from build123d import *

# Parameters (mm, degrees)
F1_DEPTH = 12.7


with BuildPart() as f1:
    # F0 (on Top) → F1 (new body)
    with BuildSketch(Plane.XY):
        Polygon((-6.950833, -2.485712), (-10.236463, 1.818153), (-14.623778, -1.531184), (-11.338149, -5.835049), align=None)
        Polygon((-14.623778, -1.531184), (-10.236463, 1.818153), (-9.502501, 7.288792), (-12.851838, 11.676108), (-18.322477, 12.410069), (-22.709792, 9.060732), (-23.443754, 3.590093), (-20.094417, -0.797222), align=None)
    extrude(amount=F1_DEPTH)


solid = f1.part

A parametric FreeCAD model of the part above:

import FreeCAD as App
import Part
import Sketcher
from FreeCAD import Vector
Q = App.Units.Quantity

doc = App.newDocument("Part")
body = doc.addObject("PartDesign::Body", "Body")

sketch1 = body.newObject("Sketcher::SketchObject", "Sketch")
sketch1.AttachmentSupport = (doc.getObject("XY_Plane"), [""])
sketch1.MapMode = "FlatFace"
sketch1.addGeometry([
    Part.LineSegment(Vector(-6.950833, -2.485712, 0), Vector(-10.236463, 1.818153, 0)),
    Part.LineSegment(Vector(-10.236463, 1.818153, 0), Vector(-9.502501, 7.288792, 0)),
    Part.LineSegment(Vector(-9.502501, 7.288792, 0), Vector(-12.851838, 11.676108, 0)),
    Part.LineSegment(Vector(-12.851838, 11.676108, 0), Vector(-18.322477, 12.410069, 0)),
    Part.LineSegment(Vector(-18.322477, 12.410069, 0), Vector(-22.709792, 9.060732, 0)),
    Part.LineSegment(Vector(-22.709792, 9.060732, 0), Vector(-23.443754, 3.590093, 0)),
    Part.LineSegment(Vector(-23.443754, 3.590093, 0), Vector(-20.094417, -0.797222, 0)),
    Part.LineSegment(Vector(-20.094417, -0.797222, 0), Vector(-14.623778, -1.531184, 0)),
    Part.LineSegment(Vector(-14.623778, -1.531184, 0), Vector(-11.338149, -5.835049, 0)),
    Part.LineSegment(Vector(-11.338149, -5.835049, 0), Vector(-6.950833, -2.485712, 0)),
], False)
sketch1.addConstraint([
    Sketcher.Constraint("Coincident", 0, 2, 1, 1),
    Sketcher.Constraint("Coincident", 1, 2, 2, 1),
    Sketcher.Constraint("Coincident", 2, 2, 3, 1),
    Sketcher.Constraint("Coincident", 3, 2, 4, 1),
    Sketcher.Constraint("Coincident", 4, 2, 5, 1),
    Sketcher.Constraint("Coincident", 5, 2, 6, 1),
    Sketcher.Constraint("Coincident", 6, 2, 7, 1),
    Sketcher.Constraint("Coincident", 7, 2, 8, 1),
    Sketcher.Constraint("Coincident", 8, 2, 9, 1),
    Sketcher.Constraint("Coincident", 9, 2, 0, 1),
    Sketcher.Constraint("Parallel", 0, 2),
    Sketcher.Constraint("Perpendicular", 1, 3),
    Sketcher.Constraint("Perpendicular", 2, 4),
    Sketcher.Constraint("Perpendicular", 3, 5),
    Sketcher.Constraint("Perpendicular", 4, 6),
    Sketcher.Constraint("Perpendicular", 5, 7),
    Sketcher.Constraint("Parallel", 6, 8),
    Sketcher.Constraint("Perpendicular", 8, 9),
    Sketcher.Constraint("Equal", 1, 2),
    Sketcher.Constraint("Equal", 2, 3),
    Sketcher.Constraint("Equal", 3, 4),
    Sketcher.Constraint("Equal", 4, 5),
    Sketcher.Constraint("Equal", 5, 6),
    Sketcher.Constraint("Equal", 6, 7),
    Sketcher.Constraint("DistanceX", 1, 2, -1, 1, Q("9.502501 mm")),
    Sketcher.Constraint("DistanceY", 5, 2, 1, 2, Q("3.698699 mm")),
    Sketcher.Constraint("DistanceY", 8, 2, 0, 2, Q("7.653202 mm")),
    Sketcher.Constraint("DistanceX", 2, 2, -1, 1, Q("12.851838 mm")),
    Sketcher.Constraint("DistanceY", -1, 1, 3, 2, Q("12.410069 mm")),
    Sketcher.Constraint("DistanceX", 4, 2, -1, 1, Q("22.709792 mm")),
])
pad1 = body.newObject("PartDesign::Pad", "Pad")
pad1.Profile = sketch1
pad1.Length = Q("0.5 in")

doc.recompute()
